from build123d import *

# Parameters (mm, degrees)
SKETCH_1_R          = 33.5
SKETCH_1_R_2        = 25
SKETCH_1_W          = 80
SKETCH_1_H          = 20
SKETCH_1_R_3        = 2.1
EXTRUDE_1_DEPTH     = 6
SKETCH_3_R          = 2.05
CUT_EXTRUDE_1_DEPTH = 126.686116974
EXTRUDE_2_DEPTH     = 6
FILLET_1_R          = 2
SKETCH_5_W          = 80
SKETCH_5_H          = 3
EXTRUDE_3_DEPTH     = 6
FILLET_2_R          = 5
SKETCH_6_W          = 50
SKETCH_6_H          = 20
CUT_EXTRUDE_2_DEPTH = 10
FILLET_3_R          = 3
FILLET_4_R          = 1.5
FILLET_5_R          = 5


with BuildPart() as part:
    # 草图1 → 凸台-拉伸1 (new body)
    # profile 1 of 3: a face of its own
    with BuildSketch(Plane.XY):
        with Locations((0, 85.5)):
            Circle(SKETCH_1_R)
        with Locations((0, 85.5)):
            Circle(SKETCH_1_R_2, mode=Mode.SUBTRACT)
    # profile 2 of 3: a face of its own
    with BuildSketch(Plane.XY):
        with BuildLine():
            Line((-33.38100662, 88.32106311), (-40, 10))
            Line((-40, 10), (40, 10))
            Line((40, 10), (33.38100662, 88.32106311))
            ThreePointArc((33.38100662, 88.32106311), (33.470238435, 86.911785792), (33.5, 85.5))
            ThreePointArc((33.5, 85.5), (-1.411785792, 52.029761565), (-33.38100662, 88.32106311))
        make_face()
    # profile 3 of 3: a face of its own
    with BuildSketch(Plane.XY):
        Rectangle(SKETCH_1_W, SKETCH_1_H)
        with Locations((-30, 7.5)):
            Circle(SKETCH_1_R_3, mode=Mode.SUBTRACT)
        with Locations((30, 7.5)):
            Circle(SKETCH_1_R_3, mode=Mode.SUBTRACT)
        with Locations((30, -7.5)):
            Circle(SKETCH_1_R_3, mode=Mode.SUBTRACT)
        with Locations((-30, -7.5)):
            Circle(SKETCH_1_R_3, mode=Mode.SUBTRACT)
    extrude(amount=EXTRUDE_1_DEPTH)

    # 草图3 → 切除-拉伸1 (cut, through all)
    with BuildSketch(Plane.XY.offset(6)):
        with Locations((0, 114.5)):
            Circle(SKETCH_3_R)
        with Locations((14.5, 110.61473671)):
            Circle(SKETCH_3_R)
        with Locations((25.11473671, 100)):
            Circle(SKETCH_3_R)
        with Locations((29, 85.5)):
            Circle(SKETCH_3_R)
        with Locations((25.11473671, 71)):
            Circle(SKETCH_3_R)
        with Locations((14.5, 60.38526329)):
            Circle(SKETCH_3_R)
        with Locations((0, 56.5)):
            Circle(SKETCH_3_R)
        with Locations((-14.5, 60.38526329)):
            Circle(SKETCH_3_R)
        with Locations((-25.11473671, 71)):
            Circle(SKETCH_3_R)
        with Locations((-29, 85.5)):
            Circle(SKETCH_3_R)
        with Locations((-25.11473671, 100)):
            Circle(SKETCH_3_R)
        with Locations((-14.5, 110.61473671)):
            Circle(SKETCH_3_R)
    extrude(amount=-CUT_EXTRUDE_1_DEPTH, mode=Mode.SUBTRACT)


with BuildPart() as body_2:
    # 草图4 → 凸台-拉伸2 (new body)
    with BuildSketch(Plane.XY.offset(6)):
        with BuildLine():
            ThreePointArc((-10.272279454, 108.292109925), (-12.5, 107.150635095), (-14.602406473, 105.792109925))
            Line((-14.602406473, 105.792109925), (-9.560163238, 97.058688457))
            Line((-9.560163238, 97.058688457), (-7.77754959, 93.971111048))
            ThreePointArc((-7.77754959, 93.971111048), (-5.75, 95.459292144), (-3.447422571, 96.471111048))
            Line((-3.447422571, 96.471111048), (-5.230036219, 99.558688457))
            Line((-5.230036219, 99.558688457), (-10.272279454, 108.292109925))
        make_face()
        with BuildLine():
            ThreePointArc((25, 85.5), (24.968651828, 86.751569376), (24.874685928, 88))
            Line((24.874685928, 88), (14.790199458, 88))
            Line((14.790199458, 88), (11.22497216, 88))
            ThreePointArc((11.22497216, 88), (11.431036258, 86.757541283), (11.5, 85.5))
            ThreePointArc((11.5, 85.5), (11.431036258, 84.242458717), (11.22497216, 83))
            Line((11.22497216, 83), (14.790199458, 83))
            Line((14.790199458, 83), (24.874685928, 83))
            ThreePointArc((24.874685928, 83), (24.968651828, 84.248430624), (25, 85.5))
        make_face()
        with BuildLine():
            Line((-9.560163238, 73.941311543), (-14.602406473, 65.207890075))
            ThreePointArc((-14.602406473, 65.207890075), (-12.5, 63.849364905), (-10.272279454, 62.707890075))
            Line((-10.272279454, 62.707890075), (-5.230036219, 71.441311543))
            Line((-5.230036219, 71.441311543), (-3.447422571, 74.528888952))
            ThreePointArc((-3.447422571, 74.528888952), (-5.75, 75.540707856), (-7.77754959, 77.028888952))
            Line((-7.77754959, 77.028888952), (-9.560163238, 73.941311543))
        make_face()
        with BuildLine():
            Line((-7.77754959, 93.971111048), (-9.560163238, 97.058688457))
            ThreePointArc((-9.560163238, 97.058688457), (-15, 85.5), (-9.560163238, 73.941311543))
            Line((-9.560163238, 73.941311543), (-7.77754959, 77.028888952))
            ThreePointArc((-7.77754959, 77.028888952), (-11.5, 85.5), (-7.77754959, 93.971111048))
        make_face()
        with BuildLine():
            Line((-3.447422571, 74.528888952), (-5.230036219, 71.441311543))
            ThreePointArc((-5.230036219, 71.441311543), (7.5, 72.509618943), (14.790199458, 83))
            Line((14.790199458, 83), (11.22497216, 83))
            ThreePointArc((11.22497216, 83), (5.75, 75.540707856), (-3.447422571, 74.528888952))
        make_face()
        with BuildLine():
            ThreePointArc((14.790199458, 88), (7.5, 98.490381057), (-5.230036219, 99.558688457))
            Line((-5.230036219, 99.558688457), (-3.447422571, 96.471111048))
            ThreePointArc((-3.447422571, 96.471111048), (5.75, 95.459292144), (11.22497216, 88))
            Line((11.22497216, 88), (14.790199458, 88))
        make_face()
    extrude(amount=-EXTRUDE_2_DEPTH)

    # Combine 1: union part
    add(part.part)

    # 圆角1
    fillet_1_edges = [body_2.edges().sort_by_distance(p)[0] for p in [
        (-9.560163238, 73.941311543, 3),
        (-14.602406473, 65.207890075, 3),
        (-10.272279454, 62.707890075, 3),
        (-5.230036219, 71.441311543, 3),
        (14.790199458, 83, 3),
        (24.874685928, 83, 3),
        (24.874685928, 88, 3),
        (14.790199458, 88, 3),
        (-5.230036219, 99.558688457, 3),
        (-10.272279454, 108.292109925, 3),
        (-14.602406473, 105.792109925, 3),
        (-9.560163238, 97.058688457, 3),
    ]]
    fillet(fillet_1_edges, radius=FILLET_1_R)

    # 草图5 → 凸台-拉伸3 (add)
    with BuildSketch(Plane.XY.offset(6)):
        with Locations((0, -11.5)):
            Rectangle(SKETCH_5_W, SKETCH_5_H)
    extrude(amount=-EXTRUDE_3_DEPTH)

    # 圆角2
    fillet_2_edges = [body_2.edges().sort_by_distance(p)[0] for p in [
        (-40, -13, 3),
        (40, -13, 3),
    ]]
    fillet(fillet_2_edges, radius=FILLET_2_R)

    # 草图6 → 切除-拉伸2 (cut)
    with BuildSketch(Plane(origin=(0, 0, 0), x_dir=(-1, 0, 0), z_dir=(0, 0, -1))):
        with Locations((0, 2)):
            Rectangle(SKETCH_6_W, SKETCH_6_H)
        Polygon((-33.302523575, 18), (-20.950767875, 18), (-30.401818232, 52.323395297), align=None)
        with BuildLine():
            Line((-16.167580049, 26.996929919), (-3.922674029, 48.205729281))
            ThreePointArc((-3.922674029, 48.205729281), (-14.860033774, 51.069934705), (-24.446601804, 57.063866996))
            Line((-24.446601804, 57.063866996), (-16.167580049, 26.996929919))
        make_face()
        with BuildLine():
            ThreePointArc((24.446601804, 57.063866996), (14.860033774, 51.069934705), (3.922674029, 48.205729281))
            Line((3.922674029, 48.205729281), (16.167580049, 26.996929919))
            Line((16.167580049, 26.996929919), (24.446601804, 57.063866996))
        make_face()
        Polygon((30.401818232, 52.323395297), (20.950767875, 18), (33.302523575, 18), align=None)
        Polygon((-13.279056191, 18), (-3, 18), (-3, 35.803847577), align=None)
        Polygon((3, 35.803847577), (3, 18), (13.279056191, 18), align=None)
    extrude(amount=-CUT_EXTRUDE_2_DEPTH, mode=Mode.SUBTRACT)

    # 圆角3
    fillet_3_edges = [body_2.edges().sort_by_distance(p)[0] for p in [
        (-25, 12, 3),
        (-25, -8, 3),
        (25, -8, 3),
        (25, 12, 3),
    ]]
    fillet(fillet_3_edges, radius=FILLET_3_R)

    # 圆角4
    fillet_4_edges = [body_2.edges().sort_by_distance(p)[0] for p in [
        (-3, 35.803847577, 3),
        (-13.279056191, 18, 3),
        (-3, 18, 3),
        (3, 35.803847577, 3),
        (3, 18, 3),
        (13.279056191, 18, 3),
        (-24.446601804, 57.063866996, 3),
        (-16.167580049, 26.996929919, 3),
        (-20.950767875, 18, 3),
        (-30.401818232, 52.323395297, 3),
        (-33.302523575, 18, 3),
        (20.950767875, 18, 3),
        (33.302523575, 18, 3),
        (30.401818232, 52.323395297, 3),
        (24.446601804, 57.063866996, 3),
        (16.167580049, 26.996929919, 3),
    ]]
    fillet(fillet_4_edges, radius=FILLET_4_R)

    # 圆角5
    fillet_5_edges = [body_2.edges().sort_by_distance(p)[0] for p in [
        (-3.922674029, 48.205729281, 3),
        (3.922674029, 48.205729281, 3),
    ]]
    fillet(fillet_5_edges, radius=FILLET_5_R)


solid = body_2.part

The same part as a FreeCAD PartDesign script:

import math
import FreeCAD as App
import Part
import Sketcher

V = App.Vector
Q = App.Units.Quantity


def edges_at(feature, points):
    """Names of the edges that pass closest to the given points."""
    edges = feature.Shape.Edges
    near = lambda p: min(range(len(edges)), key=lambda i: edges[i].distToShape(Part.Vertex(*p))[0])
    return sorted({f"Edge{near(p) + 1}" for p in points})


def add_polygon(sketch, points):
    """Adds a closed chain of lines whose ends are joined by coincident constraints."""
    first, n = sketch.GeometryCount, len(points)
    for a, b in zip(points, points[1:] + points[:1]):
        sketch.addGeometry(Part.LineSegment(App.Vector(*a, 0), App.Vector(*b, 0)), False)
    for i in range(n):
        sketch.addConstraint(Sketcher.Constraint("Coincident", first + i, 2, first + (i + 1) % n, 1))

doc = App.newDocument("Part")
body = doc.addObject("PartDesign::Body", "Body")

sketch1 = body.newObject("Sketcher::SketchObject", "Sketch")
sketch1.AttachmentSupport = (doc.getObject("XY_Plane"), [""])
sketch1.MapMode = "FlatFace"
sketch1.addGeometry(Part.ArcOfCircle(Part.Circle(V(0, 85.5, 0), V(0, 0, 1), 33.5), math.radians(5), math.radians(175)), False)
sketch1.addGeometry(Part.LineSegment(V(-33.4, 88.3, 0), V(-40, 10, 0)), False)
sketch1.addGeometry(Part.LineSegment(V(-40, 10, 0), V(-40, -10, 0)), False)
sketch1.addGeometry(Part.LineSegment(V(-40, -10, 0), V(40, -10, 0)), False)
sketch1.addGeometry(Part.LineSegment(V(40, -10, 0), V(40, 10, 0)), False)
sketch1.addGeometry(Part.LineSegment(V(40, 10, 0), V(33.4, 88.3, 0)), False)
sketch1.addGeometry(Part.Circle(V(0, 85.5, 0), V(0, 0, 1), 25), False)
sketch1.addGeometry(Part.Circle(V(30, 7.5, 0), V(0, 0, 1), 2.1), False)
sketch1.addGeometry(Part.Circle(V(-30, -7.5, 0), V(0, 0, 1), 2.1), False)
sketch1.addGeometry(Part.Circle(V(30, -7.5, 0), V(0, 0, 1), 2.1), False)
sketch1.addGeometry(Part.Circle(V(-30, 7.5, 0), V(0, 0, 1), 2.1), False)
sketch1.addConstraint(Sketcher.Constraint("Tangent", 0, 2, 1, 1))
sketch1.addConstraint(Sketcher.Constraint("Coincident", 1, 2, 2, 1))
sketch1.addConstraint(Sketcher.Constraint("Coincident", 2, 2, 3, 1))
sketch1.addConstraint(Sketcher.Constraint("Coincident", 3, 2, 4, 1))
sketch1.addConstraint(Sketcher.Constraint("Coincident", 4, 2, 5, 1))
sketch1.addConstraint(Sketcher.Constraint("Tangent", 5, 2, 0, 1))
sketch1.addConstraint(Sketcher.Constraint("Vertical", 2))
sketch1.addConstraint(Sketcher.Constraint("Horizontal", 3))
sketch1.addConstraint(Sketcher.Constraint("Vertical", 4))
sketch1.addConstraint(Sketcher.Constraint("Coincident", 6, 3, 0, 3))
sketch1.addConstraint(Sketcher.Constraint("Equal", 7, 8))
sketch1.addConstraint(Sketcher.Constraint("Equal", 8, 9))
sketch1.addConstraint(Sketcher.Constraint("Equal", 9, 10))
sketch1.addConstraint(Sketcher.Constraint("Symmetric", 7, 3, 8, 3, -1, 1))
sketch1.addConstraint(Sketcher.Constraint("Symmetric", 9, 3, 10, 3, -1, 1))
sketch1.addConstraint(Sketcher.Constraint("Symmetric", 1, 2, 3, 2, -1, 1))
sketch1.addConstraint(Sketcher.Constraint("Symmetric", 8, 3, 9, 3, -2))
sketch1.addConstraint(Sketcher.Constraint("PointOnObject", 0, 3, -2))
sketch1.addConstraint(Sketcher.Constraint("Horizontal", 1, 2, 4, 2))
sketch1.addConstraint(Sketcher.Constraint("Diameter", 6, Q("50 mm")))
sketch1.addConstraint(Sketcher.Constraint("Diameter", 7, Q("4.2 mm")))
sketch1.addConstraint(Sketcher.Constraint("Radius", 0, Q("33.5 mm")))
sketch1.addConstraint(Sketcher.Constraint("DistanceX", 3, 1, 3, 2, Q("80 mm")))
sketch1.addConstraint(Sketcher.Constraint("DistanceY", 2, 2, 2, 1, Q("20 mm")))
sketch1.addConstraint(Sketcher.Constraint("DistanceX", -1, 1, 7, 3, Q("30 mm")))
sketch1.addConstraint(Sketcher.Constraint("DistanceY", 7, 3, 0, 3, Q("78 mm")))
sketch1.addConstraint(Sketcher.Constraint("DistanceY", 8, 3, 7, 3, Q("15 mm")))
pad1 = body.newObject("PartDesign::Pad", "Pad")
pad1.Profile = sketch1
pad1.Length = 6

sketch2 = body.newObject("Sketcher::SketchObject", "Sketch001")
sketch2.AttachmentSupport = (doc.getObject("XY_Plane"), [""])
sketch2.MapMode = "FlatFace"
sketch2.AttachmentOffset = App.Placement(V(0, 0, 6), App.Rotation())
sketch2.addGeometry(Part.Circle(V(0, 114.5, 0), V(0, 0, 1), 2), False)
sketch2.addGeometry(Part.Circle(V(14.5, 110.6, 0), V(0, 0, 1), 2), False)
sketch2.addGeometry(Part.Circle(V(25.1, 100, 0), V(0, 0, 1), 2), False)
sketch2.addGeometry(Part.Circle(V(29, 85.5, 0), V(0, 0, 1), 2), False)
sketch2.addGeometry(Part.Circle(V(25.1, 71, 0), V(0, 0, 1), 2), False)
sketch2.addGeometry(Part.Circle(V(14.5, 60.4, 0), V(0, 0, 1), 2), False)
sketch2.addGeometry(Part.Circle(V(0, 56.5, 0), V(0, 0, 1), 2), False)
sketch2.addGeometry(Part.Circle(V(-14.5, 60.4, 0), V(0, 0, 1), 2), False)
sketch2.addGeometry(Part.Circle(V(-25.1, 71, 0), V(0, 0, 1), 2), False)
sketch2.addGeometry(Part.Circle(V(-29, 85.5, 0), V(0, 0, 1), 2), False)
sketch2.addGeometry(Part.Circle(V(-25.1, 100, 0), V(0, 0, 1), 2), False)
sketch2.addGeometry(Part.Circle(V(-14.5, 110.6, 0), V(0, 0, 1), 2), False)
sketch2.addConstraint(Sketcher.Constraint("Equal", 0, 1))
sketch2.addConstraint(Sketcher.Constraint("Equal", 1, 2))
sketch2.addConstraint(Sketcher.Constraint("Equal", 2, 3))
sketch2.addConstraint(Sketcher.Constraint("Equal", 3, 4))
sketch2.addConstraint(Sketcher.Constraint("Equal", 4, 5))
sketch2.addConstraint(Sketcher.Constraint("Equal", 5, 6))
sketch2.addConstraint(Sketcher.Constraint("Equal", 6, 7))
sketch2.addConstraint(Sketcher.Constraint("Equal", 7, 8))
sketch2.addConstraint(Sketcher.Constraint("Equal", 8, 9))
sketch2.addConstraint(Sketcher.Constraint("Equal", 9, 10))
sketch2.addConstraint(Sketcher.Constraint("Equal", 10, 11))
sketch2.addConstraint(Sketcher.Constraint("Symmetric", 5, 3, 7, 3, -2))
sketch2.addConstraint(Sketcher.Constraint("Symmetric", 4, 3, 8, 3, -2))
sketch2.addConstraint(Sketcher.Constraint("Symmetric", 3, 3, 9, 3, -2))
sketch2.addConstraint(Sketcher.Constraint("Symmetric", 2, 3, 10, 3, -2))
sketch2.addConstraint(Sketcher.Constraint("Symmetric", 1, 3, 11, 3, -2))
sketch2.addConstraint(Sketcher.Constraint("PointOnObject", 0, 3, -2))
sketch2.addConstraint(Sketcher.Constraint("PointOnObject", 6, 3, -2))
sketch2.addConstraint(Sketcher.Constraint("Vertical", 2, 3, 4, 3))
sketch2.addConstraint(Sketcher.Constraint("Vertical", 1, 3, 5, 3))
sketch2.addConstraint(Sketcher.Constraint("Diameter", 0, Q("4.1 mm")))
sketch2.addConstraint(Sketcher.Constraint("DistanceY", -1, 1, 2, 3, Q("100 mm")))
sketch2.addConstraint(Sketcher.Constraint("DistanceX", -1, 1, 3, 3, Q("29 mm")))
sketch2.addConstraint(Sketcher.Constraint("DistanceY", -1, 1, 4, 3, Q("71 mm")))
sketch2.addConstraint(Sketcher.Constraint("DistanceY", 3, 3, 0, 3, Q("29 mm")))
sketch2.addConstraint(Sketcher.Constraint("DistanceY", 6, 3, 3, 3, Q("29 mm")))
sketch2.addConstraint(Sketcher.Constraint("DistanceX", 7, 3, 5, 3, Q("29 mm")))
sketch2.addConstraint(Sketcher.Constraint("DistanceY", -1, 1, 0, 3, Q("114.5 mm")))
sketch2.addConstraint(Sketcher.Constraint("DistanceY", -1, 1, 1, 3, Q("110.614737 mm")))
sketch2.addConstraint(Sketcher.Constraint("DistanceX", -1, 1, 2, 3, Q("25.114737 mm")))
sketch2.addConstraint(Sketcher.Constraint("DistanceY", -1, 1, 5, 3, Q("60.385263 mm")))
pocket1 = body.newObject("PartDesign::Pocket", "Pocket")
pocket1.Profile = sketch2
pocket1.Type = "ThroughAll"
body2 = doc.addObject("PartDesign::Body", "Body001")

sketch3 = body2.newObject("Sketcher::SketchObject", "Sketch002")
sketch3.AttachmentSupport = (doc.getObject("XY_Plane001"), [""])
sketch3.MapMode = "FlatFace"
sketch3.AttachmentOffset = App.Placement(V(0, 0, 6), App.Rotation())
sketch3.addGeometry(Part.ArcOfCircle(Part.Circle(V(0, 85.5, 0), V(0, 0, 1), 25), math.radians(114.26), math.radians(125.74)), False)
sketch3.addGeometry(Part.LineSegment(V(-14.6, 105.8, 0), V(-9.6, 97.1, 0)), False)
sketch3.addGeometry(Part.ArcOfCircle(Part.Circle(V(0, 85.5, 0), V(0, 0, 1), 15), math.radians(130), math.radians(230)), False)
sketch3.addGeometry(Part.LineSegment(V(-9.6, 73.9, 0), V(-14.6, 65.2, 0)), False)
sketch3.addGeometry(Part.ArcOfCircle(Part.Circle(V(0, 85.5, 0), V(0, 0, 1), 25), math.radians(-125.74), math.radians(-114.26)), False)
sketch3.addGeometry(Part.LineSegment(V(-10.3, 62.7, 0), V(-5.2, 71.4, 0)), False)
sketch3.addGeometry(Part.ArcOfCircle(Part.Circle(V(0, 85.5, 0), V(0, 0, 1), 15), math.radians(-110), math.radians(-10)), False)
sketch3.addGeometry(Part.LineSegment(V(14.8, 83, 0), V(24.9, 83, 0)), False)
sketch3.addGeometry(Part.ArcOfCircle(Part.Circle(V(0, 85.5, 0), V(0, 0, 1), 25), math.radians(-5.74), math.radians(0)), False)
sketch3.addGeometry(Part.ArcOfCircle(Part.Circle(V(0, 85.5, 0), V(0, 0, 1), 25), math.radians(0), math.radians(5.74)), False)
sketch3.addGeometry(Part.LineSegment(V(24.9, 88, 0), V(14.8, 88, 0)), False)
sketch3.addGeometry(Part.ArcOfCircle(Part.Circle(V(0, 85.5, 0), V(0, 0, 1), 15), math.radians(10), math.radians(110)), False)
sketch3.addGeometry(Part.LineSegment(V(-5.2, 99.6, 0), V(-10.3, 108.3, 0)), False)
sketch3.addGeometry(Part.ArcOfCircle(Part.Circle(V(0, 85.5, 0), V(0, 0, 1), 11.5), math.radians(0), math.radians(12.56)), False)
sketch3.addGeometry(Part.ArcOfCircle(Part.Circle(V(0, 85.5, 0), V(0, 0, 1), 11.5), math.radians(-12.56), math.radians(0)), False)
sketch3.addGeometry(Part.ArcOfCircle(Part.Circle(V(0, 85.5, 0), V(0, 0, 1), 11.5), math.radians(-107), math.radians(-13)), False)
sketch3.addGeometry(Part.ArcOfCircle(Part.Circle(V(0, 85.5, 0), V(0, 0, 1), 11.5), math.radians(-133), math.radians(-107)), False)
sketch3.addGeometry(Part.ArcOfCircle(Part.Circle(V(0, 85.5, 0), V(0, 0, 1), 11.5), math.radians(133), math.radians(227)), False)
sketch3.addGeometry(Part.ArcOfCircle(Part.Circle(V(0, 85.5, 0), V(0, 0, 1), 11.5), math.radians(107), math.radians(133)), False)
sketch3.addGeometry(Part.ArcOfCircle(Part.Circle(V(0, 85.5, 0), V(0, 0, 1), 11.5), math.radians(13), math.radians(107)), False)
sketch3.addConstraint(Sketcher.Constraint("Coincident", 0, 2, 1, 1))
sketch3.addConstraint(Sketcher.Constraint("Coincident", 1, 2, 2, 1))
sketch3.addConstraint(Sketcher.Constraint("Coincident", 2, 2, 3, 1))
sketch3.addConstraint(Sketcher.Constraint("Coincident", 3, 2, 4, 1))
sketch3.addConstraint(Sketcher.Constraint("Coincident", 4, 2, 5, 1))
sketch3.addConstraint(Sketcher.Constraint("Coincident", 5, 2, 6, 1))
sketch3.addConstraint(Sketcher.Constraint("Coincident", 6, 2, 7, 1))
sketch3.addConstraint(Sketcher.Constraint("Coincident", 7, 2, 8, 1))
sketch3.addConstraint(Sketcher.Constraint("Tangent", 8, 2, 9, 1))
sketch3.addConstraint(Sketcher.Constraint("Coincident", 9, 2, 10, 1))
sketch3.addConstraint(Sketcher.Constraint("Coincident", 10, 2, 11, 1))
sketch3.addConstraint(Sketcher.Constraint("Coincident", 11, 2, 12, 1))
sketch3.addConstraint(Sketcher.Constraint("Coincident", 12, 2, 0, 1))
sketch3.addConstraint(Sketcher.Constraint("Tangent", 13, 1, 14, 2))
sketch3.addConstraint(Sketcher.Constraint("Tangent", 14, 1, 15, 2))
sketch3.addConstraint(Sketcher.Constraint("Tangent", 15, 1, 16, 2))
sketch3.addConstraint(Sketcher.Constraint("Tangent", 16, 1, 17, 2))
sketch3.addConstraint(Sketcher.Constraint("Tangent", 17, 1, 18, 2))
sketch3.addConstraint(Sketcher.Constraint("Tangent", 18, 1, 19, 2))
sketch3.addConstraint(Sketcher.Constraint("Tangent", 19, 1, 13, 2))
sketch3.addConstraint(Sketcher.Constraint("Horizontal", 7))
sketch3.addConstraint(Sketcher.Constraint("Horizontal", 10))
sketch3.addConstraint(Sketcher.Constraint("Coincident", 2, 3, 0, 3))
sketch3.addConstraint(Sketcher.Constraint("Coincident", 4, 3, 0, 3))
sketch3.addConstraint(Sketcher.Constraint("Coincident", 6, 3, 0, 3))
sketch3.addConstraint(Sketcher.Constraint("Coincident", 8, 3, 0, 3))
sketch3.addConstraint(Sketcher.Constraint("Coincident", 11, 3, 0, 3))
sketch3.addConstraint(Sketcher.Constraint("Coincident", 13, 3, 0, 3))
sketch3.addConstraint(Sketcher.Constraint("Coincident", 15, 3, 0, 3))
sketch3.addConstraint(Sketcher.Constraint("Coincident", 17, 3, 0, 3))
sketch3.addConstraint(Sketcher.Constraint("Equal", 0, 4))
sketch3.addConstraint(Sketcher.Constraint("Equal", 2, 6))
sketch3.addConstraint(Sketcher.Constraint("Equal", 4, 8))
sketch3.addConstraint(Sketcher.Constraint("Equal", 8, 9))
sketch3.addConstraint(Sketcher.Constraint("Equal", 6, 11))
sketch3.addConstraint(Sketcher.Constraint("PointOnObject", 0, 3, -2))
sketch3.addConstraint(Sketcher.Constraint("Parallel", 3, 5))
sketch3.addConstraint(Sketcher.Constraint("Parallel", 1, 12))
sketch3.addConstraint(Sketcher.Constraint("Horizontal", 19, 3, 8, 2))
sketch3.addConstraint(Sketcher.Constraint("Horizontal", 8, 2, 13, 1))
sketch3.addConstraint(Sketcher.Constraint("Horizontal", 7, 2, 14, 1))
sketch3.addConstraint(Sketcher.Constraint("Horizontal", 10, 2, 19, 1))
sketch3.addConstraint(Sketcher.Constraint("Vertical", 1, 2, 2, 2))
sketch3.addConstraint(Sketcher.Constraint("Vertical", 0, 2, 3, 2))
sketch3.addConstraint(Sketcher.Constraint("Vertical", 7, 2, 9, 2))
sketch3.addConstraint(Sketcher.Constraint("Vertical", 5, 2, 11, 2))
sketch3.addConstraint(Sketcher.Constraint("Vertical", 16, 1, 17, 1))
sketch3.addConstraint(Sketcher.Constraint("Vertical", 15, 1, 18, 1))
sketch3.addConstraint(Sketcher.Constraint("Equal", 3, 5))
sketch3.addConstraint(Sketcher.Constraint("Radius", 0, Q("25 mm")))
sketch3.addConstraint(Sketcher.Constraint("Radius", 2, Q("15 mm")))
sketch3.addConstraint(Sketcher.Constraint("Radius", 13, Q("11.5 mm")))
sketch3.addConstraint(Sketcher.Constraint("Angle", 1, Q("-60 deg")))
sketch3.addConstraint(Sketcher.Constraint("DistanceY", -1, 1, 6, 2, Q("83 mm")))
sketch3.addConstraint(Sketcher.Constraint("DistanceY", -1, 1, 9, 2, Q("88 mm")))
sketch3.addConstraint(Sketcher.Constraint("DistanceY", 4, 2, 3, 2, Q("2.5 mm")))
sketch3.addConstraint(Sketcher.Constraint("DistanceY", 15, 1, 16, 1, Q("2.5 mm")))
sketch3.addConstraint(Sketcher.Constraint("DistanceY", -1, 1, 15, 1, Q("74.528889 mm")))
pad2 = body2.newObject("PartDesign::Pad", "Pad001")
pad2.Profile = sketch3
pad2.Length = 6
pad2.Reversed = True
doc.recompute()

boolean = body2.newObject("PartDesign::Boolean", "Boolean")
boolean.Type = "Fuse"
boolean.addObjects([body])
doc.recompute()

fillet = body2.newObject("PartDesign::Fillet", "Fillet")
fillet.Base = (boolean, edges_at(boolean, [
    (-9.56, 73.941, 3),
    (-14.602, 65.208, 3),
    (-10.272, 62.708, 3),
    (-5.23, 71.441, 3),
    (14.79, 83, 3),
    (24.875, 83, 3),
    (24.875, 88, 3),
    (14.79, 88, 3),
    (-5.23, 99.559, 3),
    (-10.272, 108.292, 3),
    (-14.602, 105.792, 3),
    (-9.56, 97.059, 3),
]))
fillet.Radius = 2

sketch4 = body2.newObject("Sketcher::SketchObject", "Sketch003")
sketch4.AttachmentSupport = (doc.getObject("XY_Plane001"), [""])
sketch4.MapMode = "FlatFace"
sketch4.AttachmentOffset = App.Placement(V(0, 0, 6), App.Rotation())
add_polygon(sketch4, [(-40, -10), (-40, -13), (40, -13), (40, -10)])
sketch4.addConstraint(Sketcher.Constraint("Vertical", 0))
sketch4.addConstraint(Sketcher.Constraint("Horizontal", 1))
sketch4.addConstraint(Sketcher.Constraint("Vertical", 2))
sketch4.addConstraint(Sketcher.Constraint("Horizontal", 3))
sketch4.addConstraint(Sketcher.Constraint("DistanceX", 1, 1, 1, 2, Q("80 mm")))
sketch4.addConstraint(Sketcher.Constraint("DistanceY", 0, 2, 0, 1, Q("3 mm")))
sketch4.addConstraint(Sketcher.Constraint("DistanceX", 0, 2, -1, 1, Q("40 mm")))
sketch4.addConstraint(Sketcher.Constraint("DistanceY", 0, 2, -1, 1, Q("13 mm")))
pad3 = body2.newObject("PartDesign::Pad", "Pad002")
pad3.Profile = sketch4
pad3.Length = 6
pad3.Reversed = True
doc.recompute()

fillet2 = body2.newObject("PartDesign::Fillet", "Fillet001")
fillet2.Base = (pad3, edges_at(pad3, [(-40, -13, 3), (40, -13, 3)]))
fillet2.Radius = 5

sketch5 = body2.newObject("Sketcher::SketchObject", "Sketch004")
sketch5.AttachmentSupport = (doc.getObject("XY_Plane001"), [""])
sketch5.MapMode = "FlatFace"
add_polygon(sketch5, [(25, 12), (25, -8), (-25, -8), (-25, 12)])
add_polygon(sketch5, [(33, 18), (21, 18), (30, 52)])
sketch5.addGeometry(Part.LineSegment(V(16, 27, 0), V(4, 48, 0)), False)
sketch5.addGeometry(Part.ArcOfCircle(Part.Circle(V(0, 86, 0), V(0, 0, 1), 38), math.radians(-84), math.radians(-49)), False)
sketch5.addGeometry(Part.LineSegment(V(24, 57, 0), V(16, 27, 0)), False)
sketch5.addGeometry(Part.ArcOfCircle(Part.Circle(V(0, 86, 0), V(0, 0, 1), 38), math.radians(-131), math.radians(-96)), False)
sketch5.addGeometry(Part.LineSegment(V(-4, 48, 0), V(-16, 27, 0)), False)
sketch5.addGeometry(Part.LineSegment(V(-16, 27, 0), V(-24, 57, 0)), False)
add_polygon(sketch5, [(-30, 52), (-21, 18), (-33, 18)])
add_polygon(sketch5, [(13, 18), (3, 18), (3, 36)])
add_polygon(sketch5, [(-3, 36), (-3, 18), (-13, 18)])
sketch5.addConstraint(Sketcher.Constraint("Coincident", 7, 2, 8, 1))
sketch5.addConstraint(Sketcher.Constraint("Coincident", 8, 2, 9, 1))
sketch5.addConstraint(Sketcher.Constraint("Coincident", 9, 2, 7, 1))
sketch5.addConstraint(Sketcher.Constraint("Coincident", 10, 2, 11, 1))
sketch5.addConstraint(Sketcher.Constraint("Coincident", 11, 2, 12, 1))
sketch5.addConstraint(Sketcher.Constraint("Coincident", 12, 2, 10, 1))
sketch5.addConstraint(Sketcher.Constraint("Vertical", 0))
sketch5.addConstraint(Sketcher.Constraint("Horizontal", 1))
sketch5.addConstraint(Sketcher.Constraint("Vertical", 2))
sketch5.addConstraint(Sketcher.Constraint("Horizontal", 3))
sketch5.addConstraint(Sketcher.Constraint("Horizontal", 4))
sketch5.addConstraint(Sketcher.Constraint("Horizontal", 14))
sketch5.addConstraint(Sketcher.Constraint("Horizontal", 16))
sketch5.addConstraint(Sketcher.Constraint("Vertical", 17))
sketch5.addConstraint(Sketcher.Constraint("Vertical", 19))
sketch5.addConstraint(Sketcher.Constraint("Horizontal", 20))
sketch5.addConstraint(Sketcher.Constraint("Coincident", 10, 3, 8, 3))
sketch5.addConstraint(Sketcher.Constraint("Equal", 8, 10))
sketch5.addConstraint(Sketcher.Constraint("Symmetric", 7, 2, 10, 2, -2))
sketch5.addConstraint(Sketcher.Constraint("Symmetric", 9, 2, 11, 2, -2))
sketch5.addConstraint(Sketcher.Constraint("Symmetric", 4, 2, 13, 2, -2))
sketch5.addConstraint(Sketcher.Constraint("Symmetric", 5, 2, 15, 2, -2))
sketch5.addConstraint(Sketcher.Constraint("Symmetric", 16, 2, 19, 2, -2))
sketch5.addConstraint(Sketcher.Constraint("Parallel", 5, 9))
sketch5.addConstraint(Sketcher.Constraint("Parallel", 12, 13))
sketch5.addConstraint(Sketcher.Constraint("Parallel", 7, 18))
sketch5.addConstraint(Sketcher.Constraint("Parallel", 11, 21))
sketch5.addConstraint(Sketcher.Constraint("Horizontal", 14, 2, 16, 2))
sketch5.addConstraint(Sketcher.Constraint("Horizontal", 17, 2, 21, 2))
sketch5.addConstraint(Sketcher.Constraint("Equal", 4, 14))
sketch5.addConstraint(Sketcher.Constraint("Radius", 8, Q("37.5 mm")))
sketch5.addConstraint(Sketcher.Constraint("DistanceX", 1, 2, 1, 1, Q("50 mm")))
sketch5.addConstraint(Sketcher.Constraint("DistanceY", 0, 2, 0, 1, Q("20 mm")))
sketch5.addConstraint(Sketcher.Constraint("Angle", 7, Q("120 deg")))
sketch5.addConstraint(Sketcher.Constraint("DistanceX", -1, 1, 0, 2, Q("25 mm")))
sketch5.addConstraint(Sketcher.Constraint("DistanceY", 0, 2, -1, 1, Q("8 mm")))
sketch5.addConstraint(Sketcher.Constraint("DistanceY", -1, 1, 4, 2, Q("18 mm")))
sketch5.addConstraint(Sketcher.Constraint("DistanceX", -1, 1, 16, 2, Q("3 mm")))
sketch5.addConstraint(Sketcher.Constraint("DistanceY", -1, 1, 8, 3, Q("85.5 mm")))
sketch5.addConstraint(Sketcher.Constraint("DistanceX", -1, 1, 8, 2, Q("24.446602 mm")))
sketch5.addConstraint(Sketcher.Constraint("DistanceY", 9, 2, 7, 2, Q("21.208799 mm")))
sketch5.addConstraint(Sketcher.Constraint("Distance", 6, Q("34.445748 mm")))
sketch5.addConstraint(Sketcher.Constraint("Distance", 9, Q("31.185941 mm")))
sketch5.addConstraint(Sketcher.Constraint("DistanceX", 4, 2, 4, 1, Q("12.351756 mm")))
sketch5.addConstraint(Sketcher.Constraint("DistanceX", 16, 2, 16, 1, Q("10.279056 mm")))
sketch5.addConstraint(Sketcher.Constraint("DistanceX", -1, 1, 5, 2, Q("30.401818 mm")))
pocket2 = body2.newObject("PartDesign::Pocket", "Pocket001")
pocket2.Profile = sketch5
pocket2.Length = 10
pocket2.Reversed = True
doc.recompute()

fillet3 = body2.newObject("PartDesign::Fillet", "Fillet002")
fillet3.Base = (pocket2, edges_at(pocket2, [
    (-25, 12, 3),
    (-25, -8, 3),
    (25, -8, 3),
    (25, 12, 3),
]))
fillet3.Radius = 3
doc.recompute()

fillet4 = body2.newObject("PartDesign::Fillet", "Fillet003")
fillet4.Base = (fillet3, edges_at(fillet3, [
    (-3, 35.804, 3),
    (-13.279, 18, 3),
    (-3, 18, 3),
    (3, 35.804, 3),
    (3, 18, 3),
    (13.279, 18, 3),
    (-24.447, 57.064, 3),
    (-16.168, 26.997, 3),
    (-20.951, 18, 3),
    (-30.402, 52.323, 3),
    (-33.303, 18, 3),
    (20.951, 18, 3),
    (33.303, 18, 3),
    (30.402, 52.323, 3),
    (24.447, 57.064, 3),
    (16.168, 26.997, 3),
]))
fillet4.Radius = 1.5
doc.recompute()

fillet5 = body2.newObject("PartDesign::Fillet", "Fillet004")
fillet5.Base = (fillet4, edges_at(fillet4, [(-3.923, 48.206, 3), (3.923, 48.206, 3)]))
fillet5.Radius = 5

doc.recompute()
